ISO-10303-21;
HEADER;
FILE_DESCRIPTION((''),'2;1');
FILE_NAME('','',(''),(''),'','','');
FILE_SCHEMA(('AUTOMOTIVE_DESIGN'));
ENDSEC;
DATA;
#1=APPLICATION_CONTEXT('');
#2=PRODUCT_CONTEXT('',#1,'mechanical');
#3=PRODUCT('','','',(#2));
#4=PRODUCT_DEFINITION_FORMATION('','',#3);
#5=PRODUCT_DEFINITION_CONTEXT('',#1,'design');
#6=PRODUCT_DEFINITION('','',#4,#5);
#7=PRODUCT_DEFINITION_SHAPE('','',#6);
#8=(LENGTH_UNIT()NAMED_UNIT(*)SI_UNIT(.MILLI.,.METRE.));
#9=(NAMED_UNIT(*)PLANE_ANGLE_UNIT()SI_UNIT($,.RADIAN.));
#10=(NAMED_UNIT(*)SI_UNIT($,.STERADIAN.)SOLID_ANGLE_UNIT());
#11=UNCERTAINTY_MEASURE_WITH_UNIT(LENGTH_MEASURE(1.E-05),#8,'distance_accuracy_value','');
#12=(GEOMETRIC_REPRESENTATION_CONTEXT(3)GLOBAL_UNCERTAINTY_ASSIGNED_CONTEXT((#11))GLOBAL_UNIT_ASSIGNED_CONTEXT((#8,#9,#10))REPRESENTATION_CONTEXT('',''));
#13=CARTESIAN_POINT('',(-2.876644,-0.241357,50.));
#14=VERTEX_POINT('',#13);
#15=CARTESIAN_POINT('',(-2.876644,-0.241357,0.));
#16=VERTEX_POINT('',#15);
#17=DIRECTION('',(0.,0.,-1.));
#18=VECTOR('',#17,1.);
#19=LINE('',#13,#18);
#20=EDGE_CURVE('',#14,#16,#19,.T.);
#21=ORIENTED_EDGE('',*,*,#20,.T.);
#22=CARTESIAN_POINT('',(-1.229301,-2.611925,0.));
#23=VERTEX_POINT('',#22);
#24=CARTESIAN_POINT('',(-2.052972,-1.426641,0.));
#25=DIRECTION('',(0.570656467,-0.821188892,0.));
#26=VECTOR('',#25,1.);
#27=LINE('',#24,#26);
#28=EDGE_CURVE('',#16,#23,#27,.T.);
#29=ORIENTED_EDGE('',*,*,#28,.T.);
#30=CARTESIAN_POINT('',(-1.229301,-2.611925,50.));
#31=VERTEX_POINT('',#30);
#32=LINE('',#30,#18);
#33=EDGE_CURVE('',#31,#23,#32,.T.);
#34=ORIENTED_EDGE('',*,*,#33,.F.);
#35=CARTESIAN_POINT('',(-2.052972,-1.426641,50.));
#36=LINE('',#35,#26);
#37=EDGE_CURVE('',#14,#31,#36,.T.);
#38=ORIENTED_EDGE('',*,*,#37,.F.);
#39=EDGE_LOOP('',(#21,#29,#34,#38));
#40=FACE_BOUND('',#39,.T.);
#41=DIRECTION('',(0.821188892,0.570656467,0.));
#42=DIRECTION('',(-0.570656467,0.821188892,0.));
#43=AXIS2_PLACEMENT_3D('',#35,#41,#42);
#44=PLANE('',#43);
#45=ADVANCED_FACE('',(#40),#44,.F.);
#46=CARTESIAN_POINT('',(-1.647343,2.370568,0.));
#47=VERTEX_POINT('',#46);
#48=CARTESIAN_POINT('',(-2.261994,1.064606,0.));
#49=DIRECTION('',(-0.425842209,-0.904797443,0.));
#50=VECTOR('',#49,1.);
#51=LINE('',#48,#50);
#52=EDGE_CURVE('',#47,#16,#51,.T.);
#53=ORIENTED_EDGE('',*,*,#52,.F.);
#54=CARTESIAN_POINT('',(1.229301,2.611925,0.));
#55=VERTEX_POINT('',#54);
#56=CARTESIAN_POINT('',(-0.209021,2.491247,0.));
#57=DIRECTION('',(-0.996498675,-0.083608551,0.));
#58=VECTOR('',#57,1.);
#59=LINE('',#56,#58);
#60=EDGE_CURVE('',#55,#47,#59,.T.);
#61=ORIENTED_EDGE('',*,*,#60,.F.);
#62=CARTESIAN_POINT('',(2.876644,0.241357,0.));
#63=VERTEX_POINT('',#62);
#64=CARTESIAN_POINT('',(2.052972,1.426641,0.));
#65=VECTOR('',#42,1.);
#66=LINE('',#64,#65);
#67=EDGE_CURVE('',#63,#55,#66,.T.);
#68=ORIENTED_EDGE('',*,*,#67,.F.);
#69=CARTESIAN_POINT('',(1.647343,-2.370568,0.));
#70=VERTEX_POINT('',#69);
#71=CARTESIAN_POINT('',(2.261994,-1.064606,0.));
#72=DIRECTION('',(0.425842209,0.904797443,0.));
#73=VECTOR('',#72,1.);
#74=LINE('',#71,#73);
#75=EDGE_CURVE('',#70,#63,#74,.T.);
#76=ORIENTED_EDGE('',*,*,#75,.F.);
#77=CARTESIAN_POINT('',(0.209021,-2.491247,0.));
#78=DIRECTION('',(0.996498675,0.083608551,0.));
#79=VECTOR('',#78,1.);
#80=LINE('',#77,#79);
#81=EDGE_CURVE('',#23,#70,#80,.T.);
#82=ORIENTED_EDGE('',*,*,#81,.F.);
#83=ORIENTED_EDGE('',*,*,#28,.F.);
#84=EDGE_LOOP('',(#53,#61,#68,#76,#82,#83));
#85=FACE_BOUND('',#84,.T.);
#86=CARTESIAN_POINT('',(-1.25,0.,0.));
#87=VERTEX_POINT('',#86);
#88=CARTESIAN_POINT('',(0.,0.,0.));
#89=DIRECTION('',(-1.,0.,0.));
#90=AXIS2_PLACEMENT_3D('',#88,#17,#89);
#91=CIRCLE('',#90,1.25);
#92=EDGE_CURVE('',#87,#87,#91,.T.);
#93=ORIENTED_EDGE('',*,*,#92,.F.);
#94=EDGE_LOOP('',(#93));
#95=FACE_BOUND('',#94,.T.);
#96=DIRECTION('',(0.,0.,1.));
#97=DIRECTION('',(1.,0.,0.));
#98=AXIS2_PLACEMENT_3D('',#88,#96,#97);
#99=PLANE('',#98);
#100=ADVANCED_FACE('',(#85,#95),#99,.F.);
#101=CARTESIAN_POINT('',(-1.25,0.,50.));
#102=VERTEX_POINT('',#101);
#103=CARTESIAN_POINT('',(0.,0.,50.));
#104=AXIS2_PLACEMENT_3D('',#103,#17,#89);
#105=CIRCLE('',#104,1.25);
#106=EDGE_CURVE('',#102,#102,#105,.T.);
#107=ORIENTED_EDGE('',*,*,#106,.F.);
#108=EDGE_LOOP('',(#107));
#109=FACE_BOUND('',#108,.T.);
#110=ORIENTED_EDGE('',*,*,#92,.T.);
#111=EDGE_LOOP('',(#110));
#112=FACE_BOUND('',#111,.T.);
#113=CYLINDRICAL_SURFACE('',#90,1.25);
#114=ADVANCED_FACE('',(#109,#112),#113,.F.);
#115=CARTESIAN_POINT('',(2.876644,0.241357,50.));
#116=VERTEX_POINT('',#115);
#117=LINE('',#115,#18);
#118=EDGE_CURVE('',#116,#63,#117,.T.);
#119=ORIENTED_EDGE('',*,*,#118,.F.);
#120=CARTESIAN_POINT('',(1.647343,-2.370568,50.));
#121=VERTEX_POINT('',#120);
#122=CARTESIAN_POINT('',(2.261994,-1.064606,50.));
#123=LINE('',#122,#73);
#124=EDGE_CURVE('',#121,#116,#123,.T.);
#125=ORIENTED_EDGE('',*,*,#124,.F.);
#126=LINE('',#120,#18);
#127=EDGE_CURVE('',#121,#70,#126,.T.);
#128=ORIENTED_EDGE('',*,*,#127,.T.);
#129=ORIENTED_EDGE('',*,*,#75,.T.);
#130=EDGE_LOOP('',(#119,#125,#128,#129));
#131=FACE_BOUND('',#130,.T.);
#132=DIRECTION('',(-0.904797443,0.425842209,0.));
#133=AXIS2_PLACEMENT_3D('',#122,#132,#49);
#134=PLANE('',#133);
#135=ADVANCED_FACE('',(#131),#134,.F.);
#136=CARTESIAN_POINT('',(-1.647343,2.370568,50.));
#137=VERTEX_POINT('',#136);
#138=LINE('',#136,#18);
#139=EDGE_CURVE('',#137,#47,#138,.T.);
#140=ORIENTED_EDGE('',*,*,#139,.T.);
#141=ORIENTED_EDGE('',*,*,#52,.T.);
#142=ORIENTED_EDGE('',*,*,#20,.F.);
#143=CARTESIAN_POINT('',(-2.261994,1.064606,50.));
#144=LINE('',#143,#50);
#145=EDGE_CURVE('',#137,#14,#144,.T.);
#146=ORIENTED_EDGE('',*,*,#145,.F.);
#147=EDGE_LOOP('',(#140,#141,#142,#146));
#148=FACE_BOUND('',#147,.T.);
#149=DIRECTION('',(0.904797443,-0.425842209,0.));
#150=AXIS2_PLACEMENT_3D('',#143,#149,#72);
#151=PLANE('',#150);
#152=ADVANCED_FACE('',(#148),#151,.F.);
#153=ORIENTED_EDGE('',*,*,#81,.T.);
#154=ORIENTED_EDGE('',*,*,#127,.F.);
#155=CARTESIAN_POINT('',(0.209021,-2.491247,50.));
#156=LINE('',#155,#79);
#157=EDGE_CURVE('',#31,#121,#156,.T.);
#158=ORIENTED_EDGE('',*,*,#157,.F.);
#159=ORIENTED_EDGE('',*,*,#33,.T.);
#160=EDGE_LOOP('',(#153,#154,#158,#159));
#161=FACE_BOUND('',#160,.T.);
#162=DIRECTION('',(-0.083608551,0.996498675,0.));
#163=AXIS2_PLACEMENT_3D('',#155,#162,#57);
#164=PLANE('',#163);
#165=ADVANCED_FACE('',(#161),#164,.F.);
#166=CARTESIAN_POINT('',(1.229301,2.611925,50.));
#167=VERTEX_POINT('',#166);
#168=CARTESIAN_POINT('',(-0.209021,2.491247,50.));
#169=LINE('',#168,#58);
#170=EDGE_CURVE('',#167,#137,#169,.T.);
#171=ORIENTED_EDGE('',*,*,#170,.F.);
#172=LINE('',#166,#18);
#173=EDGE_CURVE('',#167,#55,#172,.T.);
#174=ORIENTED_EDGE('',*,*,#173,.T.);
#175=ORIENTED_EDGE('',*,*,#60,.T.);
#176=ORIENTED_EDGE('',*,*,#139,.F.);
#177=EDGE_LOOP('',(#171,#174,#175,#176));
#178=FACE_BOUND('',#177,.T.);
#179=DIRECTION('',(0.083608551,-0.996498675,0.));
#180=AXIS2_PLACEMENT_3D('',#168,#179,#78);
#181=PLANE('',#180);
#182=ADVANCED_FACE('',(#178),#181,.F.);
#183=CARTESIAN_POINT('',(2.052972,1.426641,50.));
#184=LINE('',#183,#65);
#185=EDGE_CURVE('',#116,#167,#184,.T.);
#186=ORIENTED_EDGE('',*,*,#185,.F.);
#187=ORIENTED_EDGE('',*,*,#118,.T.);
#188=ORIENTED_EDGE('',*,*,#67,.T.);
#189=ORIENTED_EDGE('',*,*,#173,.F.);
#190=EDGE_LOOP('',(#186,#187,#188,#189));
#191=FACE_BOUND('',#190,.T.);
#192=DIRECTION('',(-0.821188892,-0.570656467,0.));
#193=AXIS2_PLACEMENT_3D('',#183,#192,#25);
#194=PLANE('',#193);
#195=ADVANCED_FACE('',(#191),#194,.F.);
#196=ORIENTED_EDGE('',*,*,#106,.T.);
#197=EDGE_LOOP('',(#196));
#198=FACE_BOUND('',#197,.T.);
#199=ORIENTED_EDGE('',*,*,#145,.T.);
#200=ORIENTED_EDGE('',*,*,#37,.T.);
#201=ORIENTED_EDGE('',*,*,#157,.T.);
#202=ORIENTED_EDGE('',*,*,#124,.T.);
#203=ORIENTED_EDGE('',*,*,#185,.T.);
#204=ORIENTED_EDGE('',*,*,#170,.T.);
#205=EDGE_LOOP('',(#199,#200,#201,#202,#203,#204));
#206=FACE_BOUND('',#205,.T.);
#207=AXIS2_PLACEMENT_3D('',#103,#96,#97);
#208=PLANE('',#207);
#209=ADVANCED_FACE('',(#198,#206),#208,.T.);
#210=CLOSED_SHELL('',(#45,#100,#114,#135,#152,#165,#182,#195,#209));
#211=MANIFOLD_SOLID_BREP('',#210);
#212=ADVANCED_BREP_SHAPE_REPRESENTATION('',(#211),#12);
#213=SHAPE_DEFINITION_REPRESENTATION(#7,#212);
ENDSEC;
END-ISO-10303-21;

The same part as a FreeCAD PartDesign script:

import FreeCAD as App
import Part
import Sketcher

V = App.Vector
Q = App.Units.Quantity

doc = App.newDocument("Part")
body = doc.addObject("PartDesign::Body", "Body")

sketch1 = body.newObject("Sketcher::SketchObject", "Sketch")
sketch1.AttachmentSupport = (doc.getObject("XY_Plane"), [""])
sketch1.MapMode = "FlatFace"
sketch1.addGeometry([
    Part.LineSegment(V(1.6, -2.4, 0), V(2.9, 0.2, 0)),
    Part.LineSegment(V(2.9, 0.2, 0), V(1.2, 2.6, 0)),
    Part.LineSegment(V(1.2, 2.6, 0), V(-1.6, 2.4, 0)),
    Part.LineSegment(V(-1.6, 2.4, 0), V(-2.9, -0.2, 0)),
    Part.LineSegment(V(-2.9, -0.2, 0), V(-1.2, -2.6, 0)),
    Part.LineSegment(V(-1.2, -2.6, 0), V(1.6, -2.4, 0)),
], False)
sketch1.addConstraint([
    Sketcher.Constraint("Coincident", 0, 2, 1, 1),
    Sketcher.Constraint("Coincident", 1, 2, 2, 1),
    Sketcher.Constraint("Coincident", 2, 2, 3, 1),
    Sketcher.Constraint("Coincident", 3, 2, 4, 1),
    Sketcher.Constraint("Coincident", 4, 2, 5, 1),
    Sketcher.Constraint("Coincident", 5, 2, 0, 1),
    Sketcher.Constraint("Symmetric", 0, 2, 3, 2, -1, 1),
    Sketcher.Constraint("Symmetric", 1, 2, 4, 2, -1, 1),
    Sketcher.Constraint("Symmetric", 2, 2, 5, 2, -1, 1),
    Sketcher.Constraint("Equal", 0, 1),
    Sketcher.Constraint("Equal", 1, 2),
    Sketcher.Constraint("DistanceX", -1, 1, 1, 2, Q("1.229301 mm")),
    Sketcher.Constraint("DistanceX", 3, 2, 2, 2, Q("1.229301 mm")),
    Sketcher.Constraint("Distance", 0, Q("2.886751 mm")),
    Sketcher.Constraint("DistanceY", -1, 1, 2, 2, Q("2.370568 mm")),
])
pad1 = body.newObject("PartDesign::Pad", "Pad")
pad1.Profile = sketch1
pad1.Length = 50

sketch2 = body.newObject("Sketcher::SketchObject", "Sketch001")
sketch2.AttachmentSupport = (doc.getObject("XY_Plane"), [""])
sketch2.MapMode = "FlatFace"
sketch2.addGeometry(Part.Circle(V(0, 0, 0), V(0, 0, 1), 1.2), False)
sketch2.addConstraint([
    Sketcher.Constraint("Coincident", 0, 3, -1, 1),
    Sketcher.Constraint("Diameter", 0, Q("2.5 mm")),
])
doc.recompute()
hole = body.newObject("PartDesign::Hole", "Hole")
hole.Profile = sketch2
hole.ThreadType = "None"
hole.Diameter = 2.5
hole.DepthType = "ThroughAll"
hole.Reversed = True

doc.recompute()
